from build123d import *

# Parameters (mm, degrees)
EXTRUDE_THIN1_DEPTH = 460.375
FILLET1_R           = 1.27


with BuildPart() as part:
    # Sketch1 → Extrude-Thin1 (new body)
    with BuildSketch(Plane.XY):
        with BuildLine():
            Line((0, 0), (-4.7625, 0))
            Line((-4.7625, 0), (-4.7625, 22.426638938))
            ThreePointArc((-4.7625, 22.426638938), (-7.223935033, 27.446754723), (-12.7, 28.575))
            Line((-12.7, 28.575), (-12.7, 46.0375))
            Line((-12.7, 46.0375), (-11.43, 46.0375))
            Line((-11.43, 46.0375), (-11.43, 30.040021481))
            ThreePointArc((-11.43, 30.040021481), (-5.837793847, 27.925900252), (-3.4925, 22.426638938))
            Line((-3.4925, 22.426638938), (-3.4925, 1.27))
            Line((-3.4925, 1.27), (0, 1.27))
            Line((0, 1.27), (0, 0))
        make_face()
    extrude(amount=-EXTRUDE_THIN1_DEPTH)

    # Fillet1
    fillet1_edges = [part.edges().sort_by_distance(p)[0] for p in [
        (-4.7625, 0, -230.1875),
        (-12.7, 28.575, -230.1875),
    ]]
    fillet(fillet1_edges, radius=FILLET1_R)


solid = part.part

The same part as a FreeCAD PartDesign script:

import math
import FreeCAD as App
import Part
import Sketcher

V = App.Vector
Q = App.Units.Quantity


def edges_at(feature, points):
    """Names of the edges that pass closest to the given points."""
    edges = feature.Shape.Edges
    near = lambda p: min(range(len(edges)), key=lambda i: edges[i].distToShape(Part.Vertex(*p))[0])
    return sorted({f"Edge{near(p) + 1}" for p in points})

doc = App.newDocument("Part")
body = doc.addObject("PartDesign::Body", "Body")

# Sketch on XY plane
sketch1 = doc.addObject("Sketcher::SketchObject", "Sketch")
body.addObject(sketch1)
sketch1.AttachmentSupport = (doc.XY_Plane, [""])
sketch1.MapMode = "FlatFace"
sketch1.addGeometry(Part.LineSegment(V(-4.8, 0, 0), V(0, 0, 0)), False)
sketch1.addGeometry(Part.LineSegment(V(0, 0, 0), V(0, 1.3, 0)), False)
sketch1.addGeometry(Part.LineSegment(V(0, 1.3, 0), V(-3.5, 1.3, 0)), False)
sketch1.addGeometry(Part.LineSegment(V(-3.5, 1.3, 0), V(-3.5, 22.4, 0)), False)
sketch1.addGeometry(Part.ArcOfCircle(Part.Circle(V(-11.1, 22.4, 0), V(0, 0, 1), 7.6), math.radians(0), math.radians(92)), False)
sketch1.addGeometry(Part.LineSegment(V(-11.4, 30, 0), V(-11.4, 46, 0)), False)
sketch1.addGeometry(Part.LineSegment(V(-11.4, 46, 0), V(-12.7, 46, 0)), False)
sketch1.addGeometry(Part.LineSegment(V(-12.7, 46, 0), V(-12.7, 28.6, 0)), False)
sketch1.addGeometry(Part.ArcOfCircle(Part.Circle(V(-11.1, 22.4, 0), V(0, 0, 1), 6.3), math.radians(0), math.radians(104)), False)
sketch1.addGeometry(Part.LineSegment(V(-4.8, 22.4, 0), V(-4.8, 0, 0)), False)
sketch1.addConstraint(Sketcher.Constraint("Coincident", 0, 2, 1, 1))
sketch1.addConstraint(Sketcher.Constraint("Coincident", 1, 2, 2, 1))
sketch1.addConstraint(Sketcher.Constraint("Coincident", 2, 2, 3, 1))
sketch1.addConstraint(Sketcher.Constraint("Tangent", 3, 2, 4, 1))
sketch1.addConstraint(Sketcher.Constraint("Coincident", 4, 2, 5, 1))
sketch1.addConstraint(Sketcher.Constraint("Coincident", 5, 2, 6, 1))
sketch1.addConstraint(Sketcher.Constraint("Coincident", 6, 2, 7, 1))
sketch1.addConstraint(Sketcher.Constraint("Coincident", 7, 2, 8, 2))
sketch1.addConstraint(Sketcher.Constraint("Tangent", 8, 1, 9, 1))
sketch1.addConstraint(Sketcher.Constraint("Coincident", 9, 2, 0, 1))
sketch1.addConstraint(Sketcher.Constraint("Horizontal", 0))
sketch1.addConstraint(Sketcher.Constraint("Vertical", 1))
sketch1.addConstraint(Sketcher.Constraint("Horizontal", 2))
sketch1.addConstraint(Sketcher.Constraint("Vertical", 3))
sketch1.addConstraint(Sketcher.Constraint("Vertical", 5))
sketch1.addConstraint(Sketcher.Constraint("Horizontal", 6))
sketch1.addConstraint(Sketcher.Constraint("Vertical", 7))
sketch1.addConstraint(Sketcher.Constraint("Vertical", 9))
sketch1.addConstraint(Sketcher.Constraint("Coincident", 0, 2, -1, 1))
sketch1.addConstraint(Sketcher.Constraint("Coincident", 8, 3, 4, 3))
sketch1.addConstraint(Sketcher.Constraint("Equal", 6, 1))
sketch1.addConstraint(Sketcher.Constraint("Radius", 4, Q("0.3 in")))
sketch1.addConstraint(Sketcher.Constraint("Radius", 8, Q("0.25 in")))
sketch1.addConstraint(Sketcher.Constraint("DistanceX", 6, 2, 6, 1, Q("0.05 in")))
sketch1.addConstraint(Sketcher.Constraint("DistanceX", 6, 2, -1, 1, Q("0.5 in")))
sketch1.addConstraint(Sketcher.Constraint("DistanceX", 0, 1, 0, 2, Q("0.1875 in")))
sketch1.addConstraint(Sketcher.Constraint("DistanceY", 7, 2, 7, 1, Q("0.6875 in")))
sketch1.addConstraint(Sketcher.Constraint("DistanceY", -1, 1, 5, 2, Q("1.8125 in")))
pad1 = doc.addObject("PartDesign::Pad", "Pad")
body.addObject(pad1)
pad1.Profile = sketch1
pad1.Length = Q("18.125 in")
pad1.Reversed = True
doc.recompute()

fillet = doc.addObject("PartDesign::Fillet", "Fillet")
body.addObject(fillet)
fillet.Base = (pad1, edges_at(pad1, [(-4.763, 0, -230.188), (-12.7, 28.575, -230.188)]))
fillet.Radius = Q("0.05 in")

doc.recompute()
